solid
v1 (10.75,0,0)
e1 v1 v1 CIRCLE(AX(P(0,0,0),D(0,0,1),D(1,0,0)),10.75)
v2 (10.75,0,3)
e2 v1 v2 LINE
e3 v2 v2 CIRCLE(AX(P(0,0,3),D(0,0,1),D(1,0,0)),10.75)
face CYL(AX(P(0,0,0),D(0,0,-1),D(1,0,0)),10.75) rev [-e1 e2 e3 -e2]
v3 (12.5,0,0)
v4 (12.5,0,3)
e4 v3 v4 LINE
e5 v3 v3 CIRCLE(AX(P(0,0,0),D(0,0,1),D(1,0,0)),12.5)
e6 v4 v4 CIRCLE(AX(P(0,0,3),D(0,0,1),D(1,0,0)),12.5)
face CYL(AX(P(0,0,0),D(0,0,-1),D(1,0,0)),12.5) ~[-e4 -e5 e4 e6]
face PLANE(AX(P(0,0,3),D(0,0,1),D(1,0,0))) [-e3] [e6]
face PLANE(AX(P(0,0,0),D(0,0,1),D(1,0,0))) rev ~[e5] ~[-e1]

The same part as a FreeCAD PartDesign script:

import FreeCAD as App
import Part
import Sketcher
from FreeCAD import Vector
Q = App.Units.Quantity

doc = App.newDocument("Part")
params = doc.addObject("Spreadsheet::Sheet", "Params")
for row, (alias, value) in enumerate([
    ("sketch1_diameter", "25 mm"),
    ("sketch1_diameter2", "21.5 mm"),
    ("pad1_length", "3 mm"),
], start=1):
    params.set(f"A{row}", alias)
    params.set(f"B{row}", "=" + value)
    params.setAlias(f"B{row}", alias)

body = doc.addObject("PartDesign::Body", "Body")

sketch1 = body.newObject("Sketcher::SketchObject", "Sketch")
sketch1.AttachmentSupport = (doc.getObject("XY_Plane"), [""])
sketch1.MapMode = "FlatFace"
sketch1.addGeometry(Part.Circle(Vector(0, 0, 0), Vector(0, 0, 1), 12.5), False)
sketch1.addGeometry(Part.Circle(Vector(0, 0, 0), Vector(0, 0, 1), 10.75), False)
sketch1.addConstraint(Sketcher.Constraint("Coincident", 0, 3, -1, 1))
sketch1.addConstraint(Sketcher.Constraint("Coincident", 1, 3, -1, 1))
sketch1.addConstraint(Sketcher.Constraint("Diameter", 0, Q("25 mm")))
sketch1.addConstraint(Sketcher.Constraint("Diameter", 1, Q("21.5 mm")))
sketch1.setExpression("Constraints[2]", "Params.sketch1_diameter")
sketch1.setExpression("Constraints[3]", "Params.sketch1_diameter2")
pad1 = body.newObject("PartDesign::Pad", "Pad")
pad1.Profile = sketch1
pad1.setExpression("Length", "Params.pad1_length")

doc.recompute()
